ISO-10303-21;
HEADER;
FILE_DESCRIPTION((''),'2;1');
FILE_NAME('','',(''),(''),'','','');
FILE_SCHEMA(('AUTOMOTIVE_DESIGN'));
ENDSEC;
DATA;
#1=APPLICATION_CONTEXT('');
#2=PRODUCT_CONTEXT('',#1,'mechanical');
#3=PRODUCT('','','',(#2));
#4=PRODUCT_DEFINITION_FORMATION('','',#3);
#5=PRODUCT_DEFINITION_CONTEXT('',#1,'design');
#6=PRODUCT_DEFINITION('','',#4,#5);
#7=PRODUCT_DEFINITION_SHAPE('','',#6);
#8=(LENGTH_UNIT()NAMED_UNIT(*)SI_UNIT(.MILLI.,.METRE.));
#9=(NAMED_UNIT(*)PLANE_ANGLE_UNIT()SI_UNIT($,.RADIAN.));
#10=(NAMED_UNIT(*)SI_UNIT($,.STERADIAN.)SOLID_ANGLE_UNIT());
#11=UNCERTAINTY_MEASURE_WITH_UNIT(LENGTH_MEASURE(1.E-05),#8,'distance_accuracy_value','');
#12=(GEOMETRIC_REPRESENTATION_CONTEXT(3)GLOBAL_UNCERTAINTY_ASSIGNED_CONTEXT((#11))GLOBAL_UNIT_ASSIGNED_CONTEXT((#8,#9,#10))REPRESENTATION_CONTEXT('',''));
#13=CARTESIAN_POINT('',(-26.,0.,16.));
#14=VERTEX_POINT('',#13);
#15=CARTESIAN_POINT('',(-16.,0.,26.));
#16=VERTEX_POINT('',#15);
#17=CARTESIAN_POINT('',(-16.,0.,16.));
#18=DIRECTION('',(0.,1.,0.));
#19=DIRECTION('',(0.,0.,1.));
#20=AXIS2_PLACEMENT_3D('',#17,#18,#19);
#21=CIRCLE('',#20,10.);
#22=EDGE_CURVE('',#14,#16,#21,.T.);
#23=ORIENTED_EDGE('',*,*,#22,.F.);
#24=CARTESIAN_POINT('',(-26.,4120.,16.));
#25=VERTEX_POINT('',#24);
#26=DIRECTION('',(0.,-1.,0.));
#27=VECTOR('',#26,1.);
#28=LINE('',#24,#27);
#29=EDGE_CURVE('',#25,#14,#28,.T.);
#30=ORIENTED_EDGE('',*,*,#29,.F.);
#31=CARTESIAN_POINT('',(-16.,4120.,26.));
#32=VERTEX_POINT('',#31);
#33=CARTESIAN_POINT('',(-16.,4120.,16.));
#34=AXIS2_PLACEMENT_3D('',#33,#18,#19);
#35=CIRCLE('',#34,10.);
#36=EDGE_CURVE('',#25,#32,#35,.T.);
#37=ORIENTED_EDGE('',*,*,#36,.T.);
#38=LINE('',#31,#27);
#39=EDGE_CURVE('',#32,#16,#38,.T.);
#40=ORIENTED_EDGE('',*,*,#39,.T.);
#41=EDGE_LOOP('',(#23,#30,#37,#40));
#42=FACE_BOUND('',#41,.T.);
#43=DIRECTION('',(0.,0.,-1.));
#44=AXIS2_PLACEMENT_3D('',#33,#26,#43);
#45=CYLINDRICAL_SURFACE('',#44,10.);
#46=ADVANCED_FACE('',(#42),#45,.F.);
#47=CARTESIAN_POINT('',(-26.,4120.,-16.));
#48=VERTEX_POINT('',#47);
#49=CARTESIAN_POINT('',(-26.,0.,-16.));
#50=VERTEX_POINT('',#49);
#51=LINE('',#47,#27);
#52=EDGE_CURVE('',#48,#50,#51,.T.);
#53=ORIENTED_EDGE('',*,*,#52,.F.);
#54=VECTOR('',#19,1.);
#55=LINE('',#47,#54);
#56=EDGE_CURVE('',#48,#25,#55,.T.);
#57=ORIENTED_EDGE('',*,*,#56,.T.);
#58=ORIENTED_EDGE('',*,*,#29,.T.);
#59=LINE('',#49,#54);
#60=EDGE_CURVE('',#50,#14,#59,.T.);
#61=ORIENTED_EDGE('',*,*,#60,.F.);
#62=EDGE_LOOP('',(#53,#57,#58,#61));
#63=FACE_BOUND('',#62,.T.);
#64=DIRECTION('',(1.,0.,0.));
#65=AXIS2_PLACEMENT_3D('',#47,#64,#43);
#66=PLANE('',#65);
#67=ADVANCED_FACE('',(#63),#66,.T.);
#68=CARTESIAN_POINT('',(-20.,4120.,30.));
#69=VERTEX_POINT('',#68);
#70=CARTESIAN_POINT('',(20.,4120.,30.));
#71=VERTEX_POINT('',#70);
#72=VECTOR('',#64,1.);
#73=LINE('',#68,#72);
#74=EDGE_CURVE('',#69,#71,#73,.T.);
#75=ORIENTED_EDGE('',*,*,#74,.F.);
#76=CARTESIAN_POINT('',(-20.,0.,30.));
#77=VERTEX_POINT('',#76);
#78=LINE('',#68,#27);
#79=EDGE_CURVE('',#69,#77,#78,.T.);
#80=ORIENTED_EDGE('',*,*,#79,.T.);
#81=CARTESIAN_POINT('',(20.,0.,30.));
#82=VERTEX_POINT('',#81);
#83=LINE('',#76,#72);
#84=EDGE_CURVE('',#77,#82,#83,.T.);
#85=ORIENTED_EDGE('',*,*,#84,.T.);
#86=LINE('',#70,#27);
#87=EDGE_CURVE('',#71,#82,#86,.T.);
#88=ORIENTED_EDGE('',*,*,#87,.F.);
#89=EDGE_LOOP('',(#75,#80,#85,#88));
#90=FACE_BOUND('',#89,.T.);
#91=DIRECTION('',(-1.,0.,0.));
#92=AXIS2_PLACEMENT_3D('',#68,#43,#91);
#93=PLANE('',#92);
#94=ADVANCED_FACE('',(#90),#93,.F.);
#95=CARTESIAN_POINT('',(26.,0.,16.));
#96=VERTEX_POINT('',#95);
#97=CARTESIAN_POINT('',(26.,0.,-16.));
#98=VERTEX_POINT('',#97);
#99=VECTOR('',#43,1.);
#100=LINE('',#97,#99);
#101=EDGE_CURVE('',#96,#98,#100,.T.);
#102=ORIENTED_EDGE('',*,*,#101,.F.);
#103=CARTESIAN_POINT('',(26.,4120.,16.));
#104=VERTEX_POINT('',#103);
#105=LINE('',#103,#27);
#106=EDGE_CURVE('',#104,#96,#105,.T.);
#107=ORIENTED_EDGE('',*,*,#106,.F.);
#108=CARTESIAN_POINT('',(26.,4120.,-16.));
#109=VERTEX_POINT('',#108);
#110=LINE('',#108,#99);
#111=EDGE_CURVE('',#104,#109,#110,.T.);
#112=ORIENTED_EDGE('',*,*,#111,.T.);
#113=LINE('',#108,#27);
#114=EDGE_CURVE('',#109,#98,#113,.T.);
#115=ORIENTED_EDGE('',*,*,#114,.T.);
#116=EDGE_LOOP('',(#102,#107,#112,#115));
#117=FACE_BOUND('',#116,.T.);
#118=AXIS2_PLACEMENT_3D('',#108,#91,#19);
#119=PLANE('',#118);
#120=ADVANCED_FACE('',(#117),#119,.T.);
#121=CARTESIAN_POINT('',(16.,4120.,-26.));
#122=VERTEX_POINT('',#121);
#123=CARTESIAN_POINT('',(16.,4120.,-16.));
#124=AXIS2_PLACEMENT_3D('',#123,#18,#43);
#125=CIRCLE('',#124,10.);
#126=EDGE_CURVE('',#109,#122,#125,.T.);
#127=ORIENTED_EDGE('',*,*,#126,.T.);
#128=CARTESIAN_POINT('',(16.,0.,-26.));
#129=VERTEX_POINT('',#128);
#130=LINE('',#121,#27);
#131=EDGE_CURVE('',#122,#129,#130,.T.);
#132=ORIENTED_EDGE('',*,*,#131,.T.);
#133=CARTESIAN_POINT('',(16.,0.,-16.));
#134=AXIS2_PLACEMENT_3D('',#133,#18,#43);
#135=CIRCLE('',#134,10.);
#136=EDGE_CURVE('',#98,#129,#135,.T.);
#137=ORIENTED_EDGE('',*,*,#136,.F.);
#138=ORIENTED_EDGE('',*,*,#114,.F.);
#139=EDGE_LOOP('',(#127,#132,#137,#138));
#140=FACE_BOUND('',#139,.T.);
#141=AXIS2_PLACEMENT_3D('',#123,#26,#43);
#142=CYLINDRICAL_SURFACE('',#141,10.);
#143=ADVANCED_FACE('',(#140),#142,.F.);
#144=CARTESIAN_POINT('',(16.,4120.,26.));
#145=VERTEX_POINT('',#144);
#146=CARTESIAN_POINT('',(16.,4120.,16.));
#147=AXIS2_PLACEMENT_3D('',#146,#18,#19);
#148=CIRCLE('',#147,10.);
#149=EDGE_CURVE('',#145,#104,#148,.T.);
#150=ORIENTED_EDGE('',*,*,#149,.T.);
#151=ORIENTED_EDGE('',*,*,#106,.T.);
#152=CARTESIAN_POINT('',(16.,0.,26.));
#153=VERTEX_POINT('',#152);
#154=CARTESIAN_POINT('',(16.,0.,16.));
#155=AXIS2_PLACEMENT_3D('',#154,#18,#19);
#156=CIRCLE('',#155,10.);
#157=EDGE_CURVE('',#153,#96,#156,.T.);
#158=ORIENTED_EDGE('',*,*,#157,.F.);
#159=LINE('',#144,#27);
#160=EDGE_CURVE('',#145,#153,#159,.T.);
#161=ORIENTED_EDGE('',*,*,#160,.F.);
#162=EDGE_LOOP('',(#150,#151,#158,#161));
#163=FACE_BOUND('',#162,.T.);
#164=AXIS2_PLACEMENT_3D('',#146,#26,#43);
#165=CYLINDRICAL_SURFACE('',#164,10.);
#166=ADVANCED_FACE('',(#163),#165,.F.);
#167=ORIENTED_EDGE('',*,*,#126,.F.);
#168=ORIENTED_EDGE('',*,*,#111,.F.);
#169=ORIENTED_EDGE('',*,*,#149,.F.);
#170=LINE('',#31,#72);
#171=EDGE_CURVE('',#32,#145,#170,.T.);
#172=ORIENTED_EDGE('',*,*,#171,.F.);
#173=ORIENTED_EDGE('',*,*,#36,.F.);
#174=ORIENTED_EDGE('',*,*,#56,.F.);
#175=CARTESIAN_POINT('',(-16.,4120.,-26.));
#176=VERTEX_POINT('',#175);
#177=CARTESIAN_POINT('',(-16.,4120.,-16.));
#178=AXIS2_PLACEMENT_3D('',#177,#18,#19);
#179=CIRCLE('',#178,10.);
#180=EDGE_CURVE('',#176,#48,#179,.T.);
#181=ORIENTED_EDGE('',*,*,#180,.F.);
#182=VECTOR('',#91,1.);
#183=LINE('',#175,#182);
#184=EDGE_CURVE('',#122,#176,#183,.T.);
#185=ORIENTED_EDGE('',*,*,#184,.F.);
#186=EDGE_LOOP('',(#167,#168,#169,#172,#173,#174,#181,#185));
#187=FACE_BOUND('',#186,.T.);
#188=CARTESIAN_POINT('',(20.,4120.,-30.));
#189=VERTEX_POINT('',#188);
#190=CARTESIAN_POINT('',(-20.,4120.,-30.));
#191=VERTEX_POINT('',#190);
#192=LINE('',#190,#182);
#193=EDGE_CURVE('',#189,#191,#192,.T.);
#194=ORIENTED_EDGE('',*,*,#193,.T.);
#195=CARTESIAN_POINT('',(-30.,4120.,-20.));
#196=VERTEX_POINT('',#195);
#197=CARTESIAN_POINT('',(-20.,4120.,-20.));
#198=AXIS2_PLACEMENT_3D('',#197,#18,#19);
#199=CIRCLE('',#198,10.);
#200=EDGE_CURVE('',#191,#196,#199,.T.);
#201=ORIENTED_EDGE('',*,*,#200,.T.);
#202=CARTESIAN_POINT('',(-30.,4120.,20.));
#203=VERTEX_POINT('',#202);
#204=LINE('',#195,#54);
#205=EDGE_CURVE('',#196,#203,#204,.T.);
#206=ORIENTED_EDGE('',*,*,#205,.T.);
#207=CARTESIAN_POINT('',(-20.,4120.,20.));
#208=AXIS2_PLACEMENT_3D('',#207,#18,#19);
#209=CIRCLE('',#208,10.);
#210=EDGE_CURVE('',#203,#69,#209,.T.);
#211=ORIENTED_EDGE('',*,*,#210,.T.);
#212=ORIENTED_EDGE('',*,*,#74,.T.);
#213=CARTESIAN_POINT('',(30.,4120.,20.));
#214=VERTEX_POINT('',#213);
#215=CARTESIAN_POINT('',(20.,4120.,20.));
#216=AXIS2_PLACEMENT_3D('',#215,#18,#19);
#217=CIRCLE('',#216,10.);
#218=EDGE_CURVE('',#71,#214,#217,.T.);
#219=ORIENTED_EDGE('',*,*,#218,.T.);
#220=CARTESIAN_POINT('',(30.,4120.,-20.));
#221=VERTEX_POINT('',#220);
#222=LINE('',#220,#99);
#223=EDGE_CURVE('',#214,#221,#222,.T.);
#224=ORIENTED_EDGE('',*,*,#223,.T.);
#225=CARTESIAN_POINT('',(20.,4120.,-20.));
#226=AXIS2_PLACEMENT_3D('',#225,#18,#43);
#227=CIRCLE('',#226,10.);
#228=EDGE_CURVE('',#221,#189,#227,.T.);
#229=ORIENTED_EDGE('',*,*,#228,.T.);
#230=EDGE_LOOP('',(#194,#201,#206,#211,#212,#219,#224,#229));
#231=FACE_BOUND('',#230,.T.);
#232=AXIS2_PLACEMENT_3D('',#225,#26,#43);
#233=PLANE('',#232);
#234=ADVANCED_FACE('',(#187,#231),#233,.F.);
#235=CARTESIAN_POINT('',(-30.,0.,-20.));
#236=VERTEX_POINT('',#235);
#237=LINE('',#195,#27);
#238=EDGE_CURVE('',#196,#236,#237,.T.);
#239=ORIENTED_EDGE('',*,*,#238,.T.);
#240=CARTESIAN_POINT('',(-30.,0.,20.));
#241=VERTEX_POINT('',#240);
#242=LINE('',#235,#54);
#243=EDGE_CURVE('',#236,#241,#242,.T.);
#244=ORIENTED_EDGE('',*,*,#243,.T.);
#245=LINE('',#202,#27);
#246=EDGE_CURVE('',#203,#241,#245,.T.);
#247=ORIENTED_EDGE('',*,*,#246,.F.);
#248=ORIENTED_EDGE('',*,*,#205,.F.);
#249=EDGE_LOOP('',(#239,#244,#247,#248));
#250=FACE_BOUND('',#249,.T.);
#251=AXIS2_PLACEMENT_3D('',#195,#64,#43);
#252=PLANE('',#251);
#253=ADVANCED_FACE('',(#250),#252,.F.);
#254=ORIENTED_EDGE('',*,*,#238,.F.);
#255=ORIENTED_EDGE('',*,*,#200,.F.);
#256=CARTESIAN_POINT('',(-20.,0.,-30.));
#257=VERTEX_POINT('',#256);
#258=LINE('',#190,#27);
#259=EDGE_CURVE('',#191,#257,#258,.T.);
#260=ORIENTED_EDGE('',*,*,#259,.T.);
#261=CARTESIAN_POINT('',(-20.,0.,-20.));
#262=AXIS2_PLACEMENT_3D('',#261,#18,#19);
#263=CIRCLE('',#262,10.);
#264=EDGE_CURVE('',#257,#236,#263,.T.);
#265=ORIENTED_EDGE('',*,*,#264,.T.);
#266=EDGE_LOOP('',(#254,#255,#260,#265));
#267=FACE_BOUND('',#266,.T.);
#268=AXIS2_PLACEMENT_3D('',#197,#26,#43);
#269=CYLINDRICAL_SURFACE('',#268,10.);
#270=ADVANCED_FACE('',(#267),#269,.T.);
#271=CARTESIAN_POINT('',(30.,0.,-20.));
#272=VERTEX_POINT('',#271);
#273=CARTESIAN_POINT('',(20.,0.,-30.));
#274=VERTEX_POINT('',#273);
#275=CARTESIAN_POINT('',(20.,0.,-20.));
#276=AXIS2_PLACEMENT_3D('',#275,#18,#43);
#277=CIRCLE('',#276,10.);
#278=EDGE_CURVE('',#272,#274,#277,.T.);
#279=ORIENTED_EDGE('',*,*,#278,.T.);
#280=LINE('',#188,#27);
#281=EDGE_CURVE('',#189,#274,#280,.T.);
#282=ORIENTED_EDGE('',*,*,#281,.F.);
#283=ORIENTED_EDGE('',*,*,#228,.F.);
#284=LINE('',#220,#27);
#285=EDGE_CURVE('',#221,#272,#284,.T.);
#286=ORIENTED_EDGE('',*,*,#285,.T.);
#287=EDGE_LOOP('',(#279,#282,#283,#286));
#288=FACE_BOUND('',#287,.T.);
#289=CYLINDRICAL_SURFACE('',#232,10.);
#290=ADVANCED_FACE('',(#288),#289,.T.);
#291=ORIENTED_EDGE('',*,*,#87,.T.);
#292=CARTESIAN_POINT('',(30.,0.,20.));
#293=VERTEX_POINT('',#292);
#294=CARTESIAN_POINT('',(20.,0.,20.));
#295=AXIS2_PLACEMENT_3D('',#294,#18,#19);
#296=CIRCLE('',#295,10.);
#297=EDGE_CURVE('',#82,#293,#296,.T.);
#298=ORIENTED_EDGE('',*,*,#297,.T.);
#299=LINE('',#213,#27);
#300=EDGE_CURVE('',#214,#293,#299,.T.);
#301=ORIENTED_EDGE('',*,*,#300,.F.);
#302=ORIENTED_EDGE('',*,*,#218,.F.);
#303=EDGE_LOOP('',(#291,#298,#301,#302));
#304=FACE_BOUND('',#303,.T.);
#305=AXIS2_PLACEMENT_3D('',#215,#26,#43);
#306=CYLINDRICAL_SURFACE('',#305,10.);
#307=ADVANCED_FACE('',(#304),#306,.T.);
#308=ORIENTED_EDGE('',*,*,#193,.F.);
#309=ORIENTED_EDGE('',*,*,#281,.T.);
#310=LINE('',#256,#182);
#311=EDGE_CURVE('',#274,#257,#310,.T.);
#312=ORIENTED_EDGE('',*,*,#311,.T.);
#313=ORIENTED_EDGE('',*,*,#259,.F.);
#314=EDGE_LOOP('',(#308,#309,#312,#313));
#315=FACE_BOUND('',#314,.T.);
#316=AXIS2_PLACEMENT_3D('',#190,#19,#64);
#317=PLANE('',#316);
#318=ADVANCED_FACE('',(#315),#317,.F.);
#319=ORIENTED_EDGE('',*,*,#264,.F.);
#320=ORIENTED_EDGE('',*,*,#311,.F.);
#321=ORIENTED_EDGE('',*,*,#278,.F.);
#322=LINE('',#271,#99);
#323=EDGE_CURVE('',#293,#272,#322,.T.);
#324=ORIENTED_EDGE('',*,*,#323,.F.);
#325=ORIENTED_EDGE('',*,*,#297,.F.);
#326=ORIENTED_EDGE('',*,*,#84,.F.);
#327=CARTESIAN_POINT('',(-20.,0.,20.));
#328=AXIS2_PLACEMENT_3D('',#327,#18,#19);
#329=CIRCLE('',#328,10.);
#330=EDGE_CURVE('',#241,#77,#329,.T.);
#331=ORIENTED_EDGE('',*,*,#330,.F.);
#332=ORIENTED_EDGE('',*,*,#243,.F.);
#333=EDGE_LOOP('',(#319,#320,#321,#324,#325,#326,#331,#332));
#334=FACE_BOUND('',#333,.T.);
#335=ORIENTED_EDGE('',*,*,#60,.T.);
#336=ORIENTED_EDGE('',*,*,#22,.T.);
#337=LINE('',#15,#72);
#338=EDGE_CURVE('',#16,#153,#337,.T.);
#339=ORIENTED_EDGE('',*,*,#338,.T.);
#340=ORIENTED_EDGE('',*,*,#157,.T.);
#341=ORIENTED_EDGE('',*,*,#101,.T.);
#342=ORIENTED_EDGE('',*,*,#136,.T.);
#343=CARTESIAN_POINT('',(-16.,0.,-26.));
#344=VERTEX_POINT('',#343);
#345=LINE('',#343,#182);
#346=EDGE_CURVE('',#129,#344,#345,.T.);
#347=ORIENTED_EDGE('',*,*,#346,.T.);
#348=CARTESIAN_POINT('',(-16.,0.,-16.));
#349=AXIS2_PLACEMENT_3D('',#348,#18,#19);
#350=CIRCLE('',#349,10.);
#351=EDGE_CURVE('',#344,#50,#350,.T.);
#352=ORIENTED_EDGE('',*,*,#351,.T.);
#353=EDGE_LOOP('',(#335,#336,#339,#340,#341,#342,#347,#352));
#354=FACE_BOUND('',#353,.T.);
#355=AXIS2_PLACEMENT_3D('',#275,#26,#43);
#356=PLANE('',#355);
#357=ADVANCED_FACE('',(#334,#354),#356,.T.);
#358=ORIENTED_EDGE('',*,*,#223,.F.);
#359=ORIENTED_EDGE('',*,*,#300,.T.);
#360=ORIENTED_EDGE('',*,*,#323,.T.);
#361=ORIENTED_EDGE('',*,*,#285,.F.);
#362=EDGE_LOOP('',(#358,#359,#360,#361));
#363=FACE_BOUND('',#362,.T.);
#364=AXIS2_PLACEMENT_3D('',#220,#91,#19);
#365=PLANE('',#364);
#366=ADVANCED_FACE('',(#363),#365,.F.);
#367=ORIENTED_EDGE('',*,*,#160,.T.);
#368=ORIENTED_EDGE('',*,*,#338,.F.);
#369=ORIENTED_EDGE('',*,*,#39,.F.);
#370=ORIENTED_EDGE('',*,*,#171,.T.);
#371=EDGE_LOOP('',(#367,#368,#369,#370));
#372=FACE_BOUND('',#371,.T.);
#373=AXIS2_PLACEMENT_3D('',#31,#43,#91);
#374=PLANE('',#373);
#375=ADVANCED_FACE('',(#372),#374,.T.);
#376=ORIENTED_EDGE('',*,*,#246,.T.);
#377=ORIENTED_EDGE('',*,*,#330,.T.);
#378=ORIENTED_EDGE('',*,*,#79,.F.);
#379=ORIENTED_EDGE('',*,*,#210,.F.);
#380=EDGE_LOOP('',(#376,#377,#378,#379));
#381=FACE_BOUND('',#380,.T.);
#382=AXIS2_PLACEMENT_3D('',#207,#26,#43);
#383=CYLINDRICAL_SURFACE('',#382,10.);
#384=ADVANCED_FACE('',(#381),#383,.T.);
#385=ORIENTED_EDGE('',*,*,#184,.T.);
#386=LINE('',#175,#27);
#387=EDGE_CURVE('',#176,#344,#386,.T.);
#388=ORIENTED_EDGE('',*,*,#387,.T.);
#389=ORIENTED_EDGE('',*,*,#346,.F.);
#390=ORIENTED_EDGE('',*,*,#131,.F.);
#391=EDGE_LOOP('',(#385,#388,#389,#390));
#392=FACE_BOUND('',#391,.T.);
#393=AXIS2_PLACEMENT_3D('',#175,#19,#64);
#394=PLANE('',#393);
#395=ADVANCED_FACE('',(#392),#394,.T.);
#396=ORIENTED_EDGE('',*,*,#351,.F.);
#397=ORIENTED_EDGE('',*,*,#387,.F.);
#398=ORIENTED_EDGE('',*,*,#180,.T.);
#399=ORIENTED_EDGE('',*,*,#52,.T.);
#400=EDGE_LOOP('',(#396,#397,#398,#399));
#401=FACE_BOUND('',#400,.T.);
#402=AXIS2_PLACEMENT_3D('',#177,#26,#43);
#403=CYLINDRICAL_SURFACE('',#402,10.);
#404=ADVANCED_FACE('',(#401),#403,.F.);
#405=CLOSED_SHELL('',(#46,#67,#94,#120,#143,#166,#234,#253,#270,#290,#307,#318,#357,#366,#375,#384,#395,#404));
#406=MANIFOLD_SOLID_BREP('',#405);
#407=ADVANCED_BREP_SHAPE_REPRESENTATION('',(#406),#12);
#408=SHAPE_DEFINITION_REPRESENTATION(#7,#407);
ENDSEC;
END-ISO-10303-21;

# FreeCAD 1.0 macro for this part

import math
import FreeCAD as App
import Part
import Sketcher

V = App.Vector

doc = App.newDocument("Part")
params = doc.addObject("Spreadsheet::Sheet", "Params")
for row, (alias, value) in enumerate([
    ("sketch1_radius", "10 mm"),
    ("sketch1_width", "40 mm"),
    ("sketch1_width2", "32 mm"),
    ("pad1_length", "4120 mm"),
], start=1):
    params.set(f"A{row}", alias)
    params.set(f"B{row}", "=" + value)
    params.setAlias(f"B{row}", alias)

body = doc.addObject("PartDesign::Body", "Body")

# Sketch on XZ plane
sketch1 = body.newObject("Sketcher::SketchObject", "Sketch")
sketch1.AttachmentSupport = (doc.getObject("XZ_Plane"), [""])
sketch1.MapMode = "FlatFace"
sketch1.addGeometry([
    Part.LineSegment(V(20, -30, 0), V(-20, -30, 0)),  # 0
    Part.ArcOfCircle(Part.Circle(V(-20, -20, 0), V(0, 0, 1), 10), math.radians(180), math.radians(270)),  # 1
    Part.LineSegment(V(-30, -20, 0), V(-30, 20, 0)),  # 2
    Part.ArcOfCircle(Part.Circle(V(-20, 20, 0), V(0, 0, 1), 10), math.radians(90), math.radians(180)),  # 3
    Part.LineSegment(V(-20, 30, 0), V(20, 30, 0)),  # 4
    Part.ArcOfCircle(Part.Circle(V(20, 20, 0), V(0, 0, 1), 10), math.radians(0), math.radians(90)),  # 5
    Part.LineSegment(V(30, 20, 0), V(30, -20, 0)),  # 6
    Part.ArcOfCircle(Part.Circle(V(20, -20, 0), V(0, 0, 1), 10), math.radians(-90), math.radians(0)),  # 7
    Part.LineSegment(V(-16, -26, 0), V(16, -26, 0)),  # 8
    Part.ArcOfCircle(Part.Circle(V(16, -16, 0), V(0, 0, 1), 10), math.radians(-90), math.radians(0)),  # 9
    Part.LineSegment(V(26, -16, 0), V(26, 16, 0)),  # 10
    Part.ArcOfCircle(Part.Circle(V(16, 16, 0), V(0, 0, 1), 10), math.radians(0), math.radians(90)),  # 11
    Part.LineSegment(V(16, 26, 0), V(-16, 26, 0)),  # 12
    Part.ArcOfCircle(Part.Circle(V(-16, 16, 0), V(0, 0, 1), 10), math.radians(90), math.radians(180)),  # 13
    Part.LineSegment(V(-26, 16, 0), V(-26, -16, 0)),  # 14
    Part.ArcOfCircle(Part.Circle(V(-16, -16, 0), V(0, 0, 1), 10), math.radians(180), math.radians(270)),  # 15
], False)
sketch1.addConstraint([
    Sketcher.Constraint("Tangent", 0, 2, 1, 2),
    Sketcher.Constraint("Tangent", 1, 1, 2, 1),
    Sketcher.Constraint("Tangent", 2, 2, 3, 2),
    Sketcher.Constraint("Tangent", 3, 1, 4, 1),
    Sketcher.Constraint("Tangent", 4, 2, 5, 2),
    Sketcher.Constraint("Tangent", 5, 1, 6, 1),
    Sketcher.Constraint("Tangent", 6, 2, 7, 2),
    Sketcher.Constraint("Tangent", 7, 1, 0, 1),
    Sketcher.Constraint("Tangent", 8, 2, 9, 1),
    Sketcher.Constraint("Tangent", 9, 2, 10, 1),
    Sketcher.Constraint("Tangent", 10, 2, 11, 1),
    Sketcher.Constraint("Tangent", 11, 2, 12, 1),
    Sketcher.Constraint("Tangent", 12, 2, 13, 1),
    Sketcher.Constraint("Tangent", 13, 2, 14, 1),
    Sketcher.Constraint("Tangent", 14, 2, 15, 1),
    Sketcher.Constraint("Tangent", 15, 2, 8, 1),
    Sketcher.Constraint("Horizontal", 0),
    Sketcher.Constraint("Vertical", 2),
    Sketcher.Constraint("Horizontal", 4),
    Sketcher.Constraint("Vertical", 6),
    Sketcher.Constraint("Horizontal", 8),
    Sketcher.Constraint("Vertical", 10),
    Sketcher.Constraint("Horizontal", 12),
    Sketcher.Constraint("Vertical", 14),
    Sketcher.Constraint("Equal", 1, 3),
    Sketcher.Constraint("Equal", 3, 5),
    Sketcher.Constraint("Equal", 5, 7),
    Sketcher.Constraint("Equal", 7, 9),
    Sketcher.Constraint("Equal", 9, 11),
    Sketcher.Constraint("Equal", 11, 13),
    Sketcher.Constraint("Equal", 13, 15),
    Sketcher.Constraint("Symmetric", 1, 3, 5, 3, -1, 1),
    Sketcher.Constraint("Symmetric", 9, 3, 13, 3, -1, 1),
    Sketcher.Constraint("Equal", 4, 2),
    Sketcher.Constraint("Equal", 12, 10),
    Sketcher.Constraint("Radius", 1, 10.0),
    Sketcher.Constraint("DistanceX", 0, 2, 0, 1, 40.0),
    Sketcher.Constraint("DistanceX", 8, 1, 8, 2, 32.0),
])
sketch1.setExpression("Constraints[35]", "Params.sketch1_radius")
sketch1.setExpression("Constraints[36]", "Params.sketch1_width")
sketch1.setExpression("Constraints[37]", "Params.sketch1_width2")
pad1 = body.newObject("PartDesign::Pad", "Pad")
pad1.Profile = sketch1
pad1.setExpression("Length", "Params.pad1_length")
pad1.Reversed = True

doc.recompute()
